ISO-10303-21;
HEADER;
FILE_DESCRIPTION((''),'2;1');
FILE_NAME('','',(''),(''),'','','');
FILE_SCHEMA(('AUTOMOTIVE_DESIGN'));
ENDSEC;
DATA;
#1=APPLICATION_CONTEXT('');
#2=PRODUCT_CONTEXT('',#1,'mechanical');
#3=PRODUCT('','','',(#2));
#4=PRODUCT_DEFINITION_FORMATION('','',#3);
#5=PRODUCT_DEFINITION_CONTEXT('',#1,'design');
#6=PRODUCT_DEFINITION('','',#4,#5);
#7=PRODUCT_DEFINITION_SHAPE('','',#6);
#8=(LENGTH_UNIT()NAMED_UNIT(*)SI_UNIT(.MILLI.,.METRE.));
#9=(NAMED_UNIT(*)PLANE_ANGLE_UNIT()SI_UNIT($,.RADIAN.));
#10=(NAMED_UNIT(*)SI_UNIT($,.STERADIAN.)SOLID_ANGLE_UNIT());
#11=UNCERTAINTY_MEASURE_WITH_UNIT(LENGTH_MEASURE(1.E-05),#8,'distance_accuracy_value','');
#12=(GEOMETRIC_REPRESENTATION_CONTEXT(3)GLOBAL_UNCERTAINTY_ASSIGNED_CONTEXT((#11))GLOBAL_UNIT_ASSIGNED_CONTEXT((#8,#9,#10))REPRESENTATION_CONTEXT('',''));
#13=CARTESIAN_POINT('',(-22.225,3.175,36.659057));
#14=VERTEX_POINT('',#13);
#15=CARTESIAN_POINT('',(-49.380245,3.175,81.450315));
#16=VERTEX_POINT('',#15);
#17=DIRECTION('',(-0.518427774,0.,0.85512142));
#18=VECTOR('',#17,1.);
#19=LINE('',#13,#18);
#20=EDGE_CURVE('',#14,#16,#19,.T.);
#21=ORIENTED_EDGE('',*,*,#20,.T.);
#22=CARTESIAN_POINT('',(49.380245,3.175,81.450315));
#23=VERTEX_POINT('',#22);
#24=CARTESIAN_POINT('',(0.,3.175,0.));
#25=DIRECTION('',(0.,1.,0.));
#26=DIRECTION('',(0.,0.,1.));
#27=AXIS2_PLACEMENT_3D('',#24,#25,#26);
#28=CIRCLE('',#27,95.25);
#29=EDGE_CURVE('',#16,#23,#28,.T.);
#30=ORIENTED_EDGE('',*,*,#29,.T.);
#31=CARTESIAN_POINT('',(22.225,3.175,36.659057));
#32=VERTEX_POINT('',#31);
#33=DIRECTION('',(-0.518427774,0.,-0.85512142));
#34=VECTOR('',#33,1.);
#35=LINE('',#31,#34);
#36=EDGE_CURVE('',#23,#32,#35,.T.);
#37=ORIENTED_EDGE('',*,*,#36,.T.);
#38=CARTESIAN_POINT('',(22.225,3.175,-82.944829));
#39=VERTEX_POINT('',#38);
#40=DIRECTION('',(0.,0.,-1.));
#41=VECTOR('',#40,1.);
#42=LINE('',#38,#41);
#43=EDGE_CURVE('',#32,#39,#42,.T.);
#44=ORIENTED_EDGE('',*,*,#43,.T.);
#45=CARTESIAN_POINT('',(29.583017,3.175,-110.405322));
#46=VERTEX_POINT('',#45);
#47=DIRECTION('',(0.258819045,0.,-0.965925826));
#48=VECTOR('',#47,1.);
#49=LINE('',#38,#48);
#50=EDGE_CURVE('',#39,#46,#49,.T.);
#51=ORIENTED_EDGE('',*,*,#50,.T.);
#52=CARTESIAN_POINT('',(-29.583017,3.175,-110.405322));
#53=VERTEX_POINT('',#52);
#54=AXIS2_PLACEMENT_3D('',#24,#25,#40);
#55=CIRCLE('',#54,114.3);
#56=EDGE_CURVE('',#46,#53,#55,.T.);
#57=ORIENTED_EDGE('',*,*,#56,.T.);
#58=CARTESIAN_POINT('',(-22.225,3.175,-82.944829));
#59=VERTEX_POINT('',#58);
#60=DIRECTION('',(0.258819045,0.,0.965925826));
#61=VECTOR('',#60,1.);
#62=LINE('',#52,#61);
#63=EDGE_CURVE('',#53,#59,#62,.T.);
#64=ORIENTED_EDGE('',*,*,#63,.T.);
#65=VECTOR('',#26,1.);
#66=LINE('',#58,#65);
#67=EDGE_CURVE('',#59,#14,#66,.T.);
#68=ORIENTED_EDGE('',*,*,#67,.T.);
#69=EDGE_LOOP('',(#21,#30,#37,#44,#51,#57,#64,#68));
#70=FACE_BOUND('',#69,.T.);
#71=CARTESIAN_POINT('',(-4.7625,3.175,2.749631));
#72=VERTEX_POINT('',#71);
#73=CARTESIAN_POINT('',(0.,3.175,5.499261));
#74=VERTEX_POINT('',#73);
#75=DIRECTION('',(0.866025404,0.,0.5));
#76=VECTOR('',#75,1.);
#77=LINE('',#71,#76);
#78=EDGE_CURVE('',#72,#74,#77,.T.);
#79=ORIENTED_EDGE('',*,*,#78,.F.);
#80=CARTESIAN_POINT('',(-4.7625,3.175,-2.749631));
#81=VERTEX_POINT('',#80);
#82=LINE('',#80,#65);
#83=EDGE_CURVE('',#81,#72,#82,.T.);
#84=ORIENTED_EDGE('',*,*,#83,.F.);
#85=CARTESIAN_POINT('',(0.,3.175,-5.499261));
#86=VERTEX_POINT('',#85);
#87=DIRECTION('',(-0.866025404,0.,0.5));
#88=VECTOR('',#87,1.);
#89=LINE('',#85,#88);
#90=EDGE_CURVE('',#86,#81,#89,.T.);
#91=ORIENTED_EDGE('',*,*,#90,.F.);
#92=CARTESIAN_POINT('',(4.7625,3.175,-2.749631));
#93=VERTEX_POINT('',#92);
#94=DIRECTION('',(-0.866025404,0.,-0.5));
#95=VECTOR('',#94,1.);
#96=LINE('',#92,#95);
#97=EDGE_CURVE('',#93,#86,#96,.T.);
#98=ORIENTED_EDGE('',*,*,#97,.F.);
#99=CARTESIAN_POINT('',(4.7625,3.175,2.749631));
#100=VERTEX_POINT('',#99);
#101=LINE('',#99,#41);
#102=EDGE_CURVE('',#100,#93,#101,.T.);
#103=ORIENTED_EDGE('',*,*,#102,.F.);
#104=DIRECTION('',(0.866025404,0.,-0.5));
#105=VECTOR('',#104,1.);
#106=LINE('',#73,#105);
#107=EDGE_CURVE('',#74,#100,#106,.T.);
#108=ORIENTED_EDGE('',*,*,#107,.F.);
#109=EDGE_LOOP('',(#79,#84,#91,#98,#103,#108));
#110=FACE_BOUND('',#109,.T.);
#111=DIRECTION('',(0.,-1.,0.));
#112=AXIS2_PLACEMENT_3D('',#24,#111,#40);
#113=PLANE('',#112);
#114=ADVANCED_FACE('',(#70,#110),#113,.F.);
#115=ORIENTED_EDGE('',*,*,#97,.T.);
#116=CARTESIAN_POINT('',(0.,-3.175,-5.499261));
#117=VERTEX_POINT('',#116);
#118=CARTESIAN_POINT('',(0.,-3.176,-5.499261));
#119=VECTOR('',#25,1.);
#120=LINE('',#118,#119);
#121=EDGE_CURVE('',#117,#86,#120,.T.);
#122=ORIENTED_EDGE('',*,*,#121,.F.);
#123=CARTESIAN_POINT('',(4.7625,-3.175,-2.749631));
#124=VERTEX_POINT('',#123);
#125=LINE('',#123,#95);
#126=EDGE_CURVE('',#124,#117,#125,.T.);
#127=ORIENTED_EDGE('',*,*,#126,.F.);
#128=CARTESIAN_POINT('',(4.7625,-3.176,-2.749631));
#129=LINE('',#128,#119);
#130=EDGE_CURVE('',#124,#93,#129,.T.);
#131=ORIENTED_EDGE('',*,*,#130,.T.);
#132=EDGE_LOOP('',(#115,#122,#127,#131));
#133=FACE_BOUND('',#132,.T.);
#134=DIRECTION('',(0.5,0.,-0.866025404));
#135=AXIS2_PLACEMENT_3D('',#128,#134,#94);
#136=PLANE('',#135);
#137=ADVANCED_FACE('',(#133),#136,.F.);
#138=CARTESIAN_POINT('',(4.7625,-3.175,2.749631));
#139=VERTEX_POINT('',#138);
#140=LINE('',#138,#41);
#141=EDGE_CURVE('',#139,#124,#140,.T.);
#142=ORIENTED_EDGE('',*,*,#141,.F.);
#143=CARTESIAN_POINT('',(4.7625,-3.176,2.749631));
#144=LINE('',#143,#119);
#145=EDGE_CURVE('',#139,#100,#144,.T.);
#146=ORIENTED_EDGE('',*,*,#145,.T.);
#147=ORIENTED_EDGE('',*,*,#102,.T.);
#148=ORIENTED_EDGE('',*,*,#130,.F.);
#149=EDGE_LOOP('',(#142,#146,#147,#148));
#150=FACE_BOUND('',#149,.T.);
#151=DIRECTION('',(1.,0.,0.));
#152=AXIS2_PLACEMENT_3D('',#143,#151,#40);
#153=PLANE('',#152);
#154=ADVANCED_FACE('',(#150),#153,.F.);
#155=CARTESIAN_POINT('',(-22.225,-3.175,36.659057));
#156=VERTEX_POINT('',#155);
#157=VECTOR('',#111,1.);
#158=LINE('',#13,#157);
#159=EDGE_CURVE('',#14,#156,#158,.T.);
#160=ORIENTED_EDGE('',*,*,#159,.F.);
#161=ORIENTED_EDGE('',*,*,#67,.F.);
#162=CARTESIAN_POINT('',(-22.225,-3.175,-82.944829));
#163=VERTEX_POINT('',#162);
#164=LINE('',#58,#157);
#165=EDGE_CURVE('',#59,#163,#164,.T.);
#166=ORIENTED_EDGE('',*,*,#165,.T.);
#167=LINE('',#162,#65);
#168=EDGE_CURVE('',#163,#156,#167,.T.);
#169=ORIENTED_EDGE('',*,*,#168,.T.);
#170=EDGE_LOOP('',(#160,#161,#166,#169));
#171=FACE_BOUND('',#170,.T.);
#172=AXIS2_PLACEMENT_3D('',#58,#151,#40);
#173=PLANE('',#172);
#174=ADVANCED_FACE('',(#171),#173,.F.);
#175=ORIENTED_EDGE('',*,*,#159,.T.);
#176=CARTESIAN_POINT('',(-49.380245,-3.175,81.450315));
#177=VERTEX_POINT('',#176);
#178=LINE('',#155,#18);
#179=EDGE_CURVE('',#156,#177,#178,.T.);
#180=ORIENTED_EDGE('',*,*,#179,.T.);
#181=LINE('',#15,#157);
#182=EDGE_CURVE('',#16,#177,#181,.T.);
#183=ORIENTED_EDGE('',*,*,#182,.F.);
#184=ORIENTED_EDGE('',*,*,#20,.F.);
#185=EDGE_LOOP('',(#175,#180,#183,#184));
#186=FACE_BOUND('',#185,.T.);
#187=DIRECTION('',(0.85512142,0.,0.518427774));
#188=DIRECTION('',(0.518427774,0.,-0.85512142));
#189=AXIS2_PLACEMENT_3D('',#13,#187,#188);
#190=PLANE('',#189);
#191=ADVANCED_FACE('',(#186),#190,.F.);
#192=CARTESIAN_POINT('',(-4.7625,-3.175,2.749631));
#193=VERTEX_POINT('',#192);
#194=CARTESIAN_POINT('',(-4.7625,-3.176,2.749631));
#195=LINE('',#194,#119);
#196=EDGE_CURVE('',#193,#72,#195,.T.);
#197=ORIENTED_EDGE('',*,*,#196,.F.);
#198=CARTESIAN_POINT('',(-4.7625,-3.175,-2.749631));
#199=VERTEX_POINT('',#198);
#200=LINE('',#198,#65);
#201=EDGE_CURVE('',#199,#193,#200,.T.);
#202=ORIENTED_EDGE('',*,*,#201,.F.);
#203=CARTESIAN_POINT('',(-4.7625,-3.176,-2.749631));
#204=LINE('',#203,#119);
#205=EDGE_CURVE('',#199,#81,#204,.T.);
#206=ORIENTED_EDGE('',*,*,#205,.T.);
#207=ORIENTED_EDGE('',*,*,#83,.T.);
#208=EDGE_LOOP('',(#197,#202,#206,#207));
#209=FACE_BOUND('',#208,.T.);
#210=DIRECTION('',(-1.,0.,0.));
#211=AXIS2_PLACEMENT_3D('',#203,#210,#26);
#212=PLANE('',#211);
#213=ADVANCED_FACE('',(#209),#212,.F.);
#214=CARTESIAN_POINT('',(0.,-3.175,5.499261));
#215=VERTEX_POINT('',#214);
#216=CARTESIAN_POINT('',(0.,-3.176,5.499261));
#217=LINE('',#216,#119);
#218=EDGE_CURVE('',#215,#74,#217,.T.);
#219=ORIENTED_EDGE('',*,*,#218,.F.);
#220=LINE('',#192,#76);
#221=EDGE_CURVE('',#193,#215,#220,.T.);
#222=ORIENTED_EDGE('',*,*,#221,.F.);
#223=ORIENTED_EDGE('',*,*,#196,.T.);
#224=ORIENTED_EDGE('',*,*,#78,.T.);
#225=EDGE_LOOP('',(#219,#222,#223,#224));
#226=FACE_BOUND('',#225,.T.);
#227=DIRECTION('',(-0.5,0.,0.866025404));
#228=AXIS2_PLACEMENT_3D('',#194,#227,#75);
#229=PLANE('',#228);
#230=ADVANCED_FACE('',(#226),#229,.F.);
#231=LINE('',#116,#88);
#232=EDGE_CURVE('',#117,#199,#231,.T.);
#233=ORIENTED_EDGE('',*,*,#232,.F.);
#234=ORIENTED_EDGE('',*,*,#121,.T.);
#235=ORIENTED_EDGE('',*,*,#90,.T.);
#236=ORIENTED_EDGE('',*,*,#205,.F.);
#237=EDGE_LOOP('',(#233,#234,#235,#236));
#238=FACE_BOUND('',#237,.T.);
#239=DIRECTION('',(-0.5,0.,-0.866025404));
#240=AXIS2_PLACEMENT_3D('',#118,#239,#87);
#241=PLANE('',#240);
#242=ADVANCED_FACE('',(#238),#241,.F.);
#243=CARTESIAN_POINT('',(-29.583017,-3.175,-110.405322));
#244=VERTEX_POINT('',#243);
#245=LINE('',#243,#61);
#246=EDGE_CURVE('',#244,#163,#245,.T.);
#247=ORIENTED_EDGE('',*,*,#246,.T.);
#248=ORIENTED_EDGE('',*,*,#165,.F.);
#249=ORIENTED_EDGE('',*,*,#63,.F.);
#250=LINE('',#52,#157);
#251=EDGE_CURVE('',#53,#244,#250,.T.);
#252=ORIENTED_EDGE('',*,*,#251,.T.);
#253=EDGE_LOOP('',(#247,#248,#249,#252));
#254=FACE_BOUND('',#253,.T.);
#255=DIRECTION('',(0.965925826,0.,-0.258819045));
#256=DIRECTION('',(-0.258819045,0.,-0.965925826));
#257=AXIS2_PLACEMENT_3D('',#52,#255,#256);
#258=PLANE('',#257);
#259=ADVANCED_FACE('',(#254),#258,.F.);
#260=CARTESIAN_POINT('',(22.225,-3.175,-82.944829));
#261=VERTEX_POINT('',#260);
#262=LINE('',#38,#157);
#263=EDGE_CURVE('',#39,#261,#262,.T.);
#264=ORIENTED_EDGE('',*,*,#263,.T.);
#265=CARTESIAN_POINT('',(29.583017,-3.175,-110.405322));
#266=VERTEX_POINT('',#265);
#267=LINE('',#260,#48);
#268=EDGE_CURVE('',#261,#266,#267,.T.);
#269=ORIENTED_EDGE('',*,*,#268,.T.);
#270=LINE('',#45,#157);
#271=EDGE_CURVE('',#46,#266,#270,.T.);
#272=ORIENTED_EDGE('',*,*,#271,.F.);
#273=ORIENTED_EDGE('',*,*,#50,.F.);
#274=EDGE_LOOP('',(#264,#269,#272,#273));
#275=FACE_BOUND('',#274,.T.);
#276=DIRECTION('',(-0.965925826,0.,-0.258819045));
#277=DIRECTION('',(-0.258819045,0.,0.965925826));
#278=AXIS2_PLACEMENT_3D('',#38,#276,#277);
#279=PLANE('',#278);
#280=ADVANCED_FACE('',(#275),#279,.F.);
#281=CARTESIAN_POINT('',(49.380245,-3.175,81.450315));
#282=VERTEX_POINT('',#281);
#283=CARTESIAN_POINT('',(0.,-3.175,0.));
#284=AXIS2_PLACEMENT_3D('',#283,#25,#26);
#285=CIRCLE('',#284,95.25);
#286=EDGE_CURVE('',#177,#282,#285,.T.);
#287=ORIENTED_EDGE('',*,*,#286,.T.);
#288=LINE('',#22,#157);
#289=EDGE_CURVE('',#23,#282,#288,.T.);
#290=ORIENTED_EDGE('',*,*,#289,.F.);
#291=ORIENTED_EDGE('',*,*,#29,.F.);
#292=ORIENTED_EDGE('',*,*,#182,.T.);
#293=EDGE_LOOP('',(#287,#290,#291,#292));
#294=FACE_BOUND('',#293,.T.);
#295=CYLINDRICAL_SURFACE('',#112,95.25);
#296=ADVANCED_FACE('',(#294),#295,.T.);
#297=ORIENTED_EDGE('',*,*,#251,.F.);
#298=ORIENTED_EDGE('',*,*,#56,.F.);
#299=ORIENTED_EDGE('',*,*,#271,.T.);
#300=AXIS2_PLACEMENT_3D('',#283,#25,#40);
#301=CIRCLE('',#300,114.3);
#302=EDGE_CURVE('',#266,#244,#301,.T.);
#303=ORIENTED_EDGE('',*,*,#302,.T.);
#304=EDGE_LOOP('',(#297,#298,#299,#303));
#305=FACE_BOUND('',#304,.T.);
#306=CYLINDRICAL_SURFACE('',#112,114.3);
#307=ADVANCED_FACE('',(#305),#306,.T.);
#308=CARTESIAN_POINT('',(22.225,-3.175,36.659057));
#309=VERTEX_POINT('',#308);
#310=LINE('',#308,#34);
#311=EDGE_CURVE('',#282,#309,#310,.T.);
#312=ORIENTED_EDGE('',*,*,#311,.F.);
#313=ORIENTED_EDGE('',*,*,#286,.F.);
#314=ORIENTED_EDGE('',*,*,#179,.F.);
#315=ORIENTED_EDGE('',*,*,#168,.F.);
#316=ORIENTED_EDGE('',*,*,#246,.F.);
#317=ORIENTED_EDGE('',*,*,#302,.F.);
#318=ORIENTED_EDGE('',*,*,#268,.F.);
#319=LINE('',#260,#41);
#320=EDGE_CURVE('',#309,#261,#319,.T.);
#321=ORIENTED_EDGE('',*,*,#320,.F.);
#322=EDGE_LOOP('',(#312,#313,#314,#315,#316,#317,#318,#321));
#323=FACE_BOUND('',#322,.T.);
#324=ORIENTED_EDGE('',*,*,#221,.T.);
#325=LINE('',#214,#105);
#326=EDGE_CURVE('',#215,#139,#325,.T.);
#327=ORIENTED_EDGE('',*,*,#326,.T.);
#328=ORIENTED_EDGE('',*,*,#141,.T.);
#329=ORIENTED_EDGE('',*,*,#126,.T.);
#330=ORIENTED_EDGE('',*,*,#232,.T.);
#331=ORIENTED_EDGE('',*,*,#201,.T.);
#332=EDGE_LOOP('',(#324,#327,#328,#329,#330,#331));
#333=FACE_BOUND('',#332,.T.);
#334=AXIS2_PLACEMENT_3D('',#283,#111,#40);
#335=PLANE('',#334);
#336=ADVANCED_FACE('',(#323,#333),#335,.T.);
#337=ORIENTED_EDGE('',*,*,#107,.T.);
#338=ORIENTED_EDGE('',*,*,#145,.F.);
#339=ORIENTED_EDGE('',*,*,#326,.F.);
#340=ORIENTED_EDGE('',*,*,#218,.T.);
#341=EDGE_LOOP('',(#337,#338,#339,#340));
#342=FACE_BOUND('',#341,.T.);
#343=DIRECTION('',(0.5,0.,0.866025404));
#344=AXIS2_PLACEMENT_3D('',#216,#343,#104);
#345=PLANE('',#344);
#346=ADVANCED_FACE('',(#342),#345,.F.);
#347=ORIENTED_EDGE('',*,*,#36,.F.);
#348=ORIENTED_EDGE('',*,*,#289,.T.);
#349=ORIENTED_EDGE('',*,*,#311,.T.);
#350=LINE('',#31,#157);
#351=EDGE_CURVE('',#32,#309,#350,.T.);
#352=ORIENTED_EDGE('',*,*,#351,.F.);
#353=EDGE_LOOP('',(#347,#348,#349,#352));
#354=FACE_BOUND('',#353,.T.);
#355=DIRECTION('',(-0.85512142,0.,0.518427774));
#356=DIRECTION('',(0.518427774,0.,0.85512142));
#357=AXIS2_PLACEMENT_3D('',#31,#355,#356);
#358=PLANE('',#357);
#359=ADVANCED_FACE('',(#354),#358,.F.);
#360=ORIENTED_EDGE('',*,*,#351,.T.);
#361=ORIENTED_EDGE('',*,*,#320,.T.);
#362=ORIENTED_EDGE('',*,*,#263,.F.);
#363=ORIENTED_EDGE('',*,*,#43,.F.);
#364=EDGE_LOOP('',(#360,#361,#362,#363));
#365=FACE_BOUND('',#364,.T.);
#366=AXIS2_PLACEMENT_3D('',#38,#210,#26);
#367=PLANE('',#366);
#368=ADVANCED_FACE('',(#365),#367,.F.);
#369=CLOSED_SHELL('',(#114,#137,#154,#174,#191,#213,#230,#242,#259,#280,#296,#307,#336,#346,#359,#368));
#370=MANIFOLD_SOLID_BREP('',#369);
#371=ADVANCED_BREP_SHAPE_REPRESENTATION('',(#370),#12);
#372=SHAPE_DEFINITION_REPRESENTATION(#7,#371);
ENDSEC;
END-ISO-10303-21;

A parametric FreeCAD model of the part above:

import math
import FreeCAD as App
import Part
import Sketcher

V = App.Vector
Q = App.Units.Quantity


def add_polygon(sketch, points):
    """Adds a closed chain of lines whose ends are joined by coincident constraints."""
    first, n = sketch.GeometryCount, len(points)
    for a, b in zip(points, points[1:] + points[:1]):
        sketch.addGeometry(Part.LineSegment(App.Vector(*a, 0), App.Vector(*b, 0)), False)
    for i in range(n):
        sketch.addConstraint(Sketcher.Constraint("Coincident", first + i, 2, first + (i + 1) % n, 1))

doc = App.newDocument("Part")
body = doc.addObject("PartDesign::Body", "Body")

# Sketch on XZ plane
sketch1 = body.newObject("Sketcher::SketchObject", "Sketch")
sketch1.AttachmentSupport = (doc.getObject("XZ_Plane"), [""])
sketch1.MapMode = "FlatFace"
sketch1.addGeometry([
    Part.LineSegment(V(-22, -83, 0), V(-22, 37, 0)),  # 0
    Part.LineSegment(V(-22, 37, 0), V(-49, 81, 0)),  # 1
    Part.ArcOfCircle(Part.Circle(V(0, 0, 0), V(0, 0, 1), 95), math.radians(59), math.radians(121)),  # 2
    Part.LineSegment(V(49, 81, 0), V(22, 37, 0)),  # 3
    Part.LineSegment(V(22, 37, 0), V(22, -83, 0)),  # 4
    Part.LineSegment(V(22, -83, 0), V(30, -110, 0)),  # 5
    Part.ArcOfCircle(Part.Circle(V(0, 0, 0), V(0, 0, 1), 114), math.radians(-105), math.radians(-75)),  # 6
    Part.LineSegment(V(-30, -110, 0), V(-22, -83, 0)),  # 7
], False)
sketch1.addConstraint([
    Sketcher.Constraint("Coincident", 0, 2, 1, 1),
    Sketcher.Constraint("Coincident", 1, 2, 2, 2),
    Sketcher.Constraint("Coincident", 2, 1, 3, 1),
    Sketcher.Constraint("Coincident", 3, 2, 4, 1),
    Sketcher.Constraint("Coincident", 4, 2, 5, 1),
    Sketcher.Constraint("Coincident", 5, 2, 6, 2),
    Sketcher.Constraint("Coincident", 6, 1, 7, 1),
    Sketcher.Constraint("Coincident", 7, 2, 0, 1),
    Sketcher.Constraint("Vertical", 0),
    Sketcher.Constraint("Vertical", 4),
    Sketcher.Constraint("Coincident", 2, 3, -1, 1),
    Sketcher.Constraint("Coincident", 6, 3, -1, 1),
    Sketcher.Constraint("Symmetric", 0, 2, 3, 2, -2),
    Sketcher.Constraint("Horizontal", 1, 2, 2, 1),
    Sketcher.Constraint("Horizontal", 5, 2, 6, 1),
    Sketcher.Constraint("Horizontal", 4, 2, 7, 2),
    Sketcher.Constraint("Radius", 6, Q("4.5 in")),
    Sketcher.Constraint("Radius", 2, Q("3.75 in")),
    Sketcher.Constraint("Angle", 5, Q("-75 deg")),
    Sketcher.Constraint("DistanceX", 0, 2, 3, 2, Q("1.75 in")),
    Sketcher.Constraint("DistanceY", 0, 1, 0, 2, 119.603887),
    Sketcher.Constraint("DistanceY", 4, 2, -1, 1, 82.944829),
    Sketcher.Constraint("DistanceX", 1, 2, 2, 1, 98.760491),
])
pad1 = body.newObject("PartDesign::Pad", "Pad")
pad1.Profile = sketch1
pad1.Length = Q("0.25 in")
pad1.Midplane = True

# Sketch on XZ plane
sketch2 = body.newObject("Sketcher::SketchObject", "Sketch001")
sketch2.AttachmentSupport = (doc.getObject("XZ_Plane"), [""])
sketch2.MapMode = "FlatFace"
sketch2.AttachmentOffset = App.Placement(V(0, 0, -0.125 * 25.4), App.Rotation())
add_polygon(sketch2, [(5, 3), (5, -3), (0, -5), (-5, -3), (-5, 3), (0, 5)])  # lines 0-5
sketch2.addConstraint([
    Sketcher.Constraint("Vertical", 0),
    Sketcher.Constraint("Vertical", 3),
    Sketcher.Constraint("Symmetric", 0, 2, 3, 2, -1, 1),
    Sketcher.Constraint("Symmetric", 1, 2, 4, 2, -1, 1),
    Sketcher.Constraint("PointOnObject", 1, 2, -2),
    Sketcher.Constraint("Parallel", 2, 5),
    Sketcher.Constraint("Horizontal", 0, 2, 2, 2),
    Sketcher.Constraint("Angle", 1, Q("-150 deg")),
    Sketcher.Constraint("DistanceX", -1, 1, 0, 2, Q("0.1875 in")),
    Sketcher.Constraint("DistanceY", 0, 2, 0, 1, 5.499261),
])
pocket1 = body.newObject("PartDesign::Pocket", "Pocket")
pocket1.Profile = sketch2
pocket1.Type = "UpToFirst"
pocket1.Reversed = True

doc.recompute()
